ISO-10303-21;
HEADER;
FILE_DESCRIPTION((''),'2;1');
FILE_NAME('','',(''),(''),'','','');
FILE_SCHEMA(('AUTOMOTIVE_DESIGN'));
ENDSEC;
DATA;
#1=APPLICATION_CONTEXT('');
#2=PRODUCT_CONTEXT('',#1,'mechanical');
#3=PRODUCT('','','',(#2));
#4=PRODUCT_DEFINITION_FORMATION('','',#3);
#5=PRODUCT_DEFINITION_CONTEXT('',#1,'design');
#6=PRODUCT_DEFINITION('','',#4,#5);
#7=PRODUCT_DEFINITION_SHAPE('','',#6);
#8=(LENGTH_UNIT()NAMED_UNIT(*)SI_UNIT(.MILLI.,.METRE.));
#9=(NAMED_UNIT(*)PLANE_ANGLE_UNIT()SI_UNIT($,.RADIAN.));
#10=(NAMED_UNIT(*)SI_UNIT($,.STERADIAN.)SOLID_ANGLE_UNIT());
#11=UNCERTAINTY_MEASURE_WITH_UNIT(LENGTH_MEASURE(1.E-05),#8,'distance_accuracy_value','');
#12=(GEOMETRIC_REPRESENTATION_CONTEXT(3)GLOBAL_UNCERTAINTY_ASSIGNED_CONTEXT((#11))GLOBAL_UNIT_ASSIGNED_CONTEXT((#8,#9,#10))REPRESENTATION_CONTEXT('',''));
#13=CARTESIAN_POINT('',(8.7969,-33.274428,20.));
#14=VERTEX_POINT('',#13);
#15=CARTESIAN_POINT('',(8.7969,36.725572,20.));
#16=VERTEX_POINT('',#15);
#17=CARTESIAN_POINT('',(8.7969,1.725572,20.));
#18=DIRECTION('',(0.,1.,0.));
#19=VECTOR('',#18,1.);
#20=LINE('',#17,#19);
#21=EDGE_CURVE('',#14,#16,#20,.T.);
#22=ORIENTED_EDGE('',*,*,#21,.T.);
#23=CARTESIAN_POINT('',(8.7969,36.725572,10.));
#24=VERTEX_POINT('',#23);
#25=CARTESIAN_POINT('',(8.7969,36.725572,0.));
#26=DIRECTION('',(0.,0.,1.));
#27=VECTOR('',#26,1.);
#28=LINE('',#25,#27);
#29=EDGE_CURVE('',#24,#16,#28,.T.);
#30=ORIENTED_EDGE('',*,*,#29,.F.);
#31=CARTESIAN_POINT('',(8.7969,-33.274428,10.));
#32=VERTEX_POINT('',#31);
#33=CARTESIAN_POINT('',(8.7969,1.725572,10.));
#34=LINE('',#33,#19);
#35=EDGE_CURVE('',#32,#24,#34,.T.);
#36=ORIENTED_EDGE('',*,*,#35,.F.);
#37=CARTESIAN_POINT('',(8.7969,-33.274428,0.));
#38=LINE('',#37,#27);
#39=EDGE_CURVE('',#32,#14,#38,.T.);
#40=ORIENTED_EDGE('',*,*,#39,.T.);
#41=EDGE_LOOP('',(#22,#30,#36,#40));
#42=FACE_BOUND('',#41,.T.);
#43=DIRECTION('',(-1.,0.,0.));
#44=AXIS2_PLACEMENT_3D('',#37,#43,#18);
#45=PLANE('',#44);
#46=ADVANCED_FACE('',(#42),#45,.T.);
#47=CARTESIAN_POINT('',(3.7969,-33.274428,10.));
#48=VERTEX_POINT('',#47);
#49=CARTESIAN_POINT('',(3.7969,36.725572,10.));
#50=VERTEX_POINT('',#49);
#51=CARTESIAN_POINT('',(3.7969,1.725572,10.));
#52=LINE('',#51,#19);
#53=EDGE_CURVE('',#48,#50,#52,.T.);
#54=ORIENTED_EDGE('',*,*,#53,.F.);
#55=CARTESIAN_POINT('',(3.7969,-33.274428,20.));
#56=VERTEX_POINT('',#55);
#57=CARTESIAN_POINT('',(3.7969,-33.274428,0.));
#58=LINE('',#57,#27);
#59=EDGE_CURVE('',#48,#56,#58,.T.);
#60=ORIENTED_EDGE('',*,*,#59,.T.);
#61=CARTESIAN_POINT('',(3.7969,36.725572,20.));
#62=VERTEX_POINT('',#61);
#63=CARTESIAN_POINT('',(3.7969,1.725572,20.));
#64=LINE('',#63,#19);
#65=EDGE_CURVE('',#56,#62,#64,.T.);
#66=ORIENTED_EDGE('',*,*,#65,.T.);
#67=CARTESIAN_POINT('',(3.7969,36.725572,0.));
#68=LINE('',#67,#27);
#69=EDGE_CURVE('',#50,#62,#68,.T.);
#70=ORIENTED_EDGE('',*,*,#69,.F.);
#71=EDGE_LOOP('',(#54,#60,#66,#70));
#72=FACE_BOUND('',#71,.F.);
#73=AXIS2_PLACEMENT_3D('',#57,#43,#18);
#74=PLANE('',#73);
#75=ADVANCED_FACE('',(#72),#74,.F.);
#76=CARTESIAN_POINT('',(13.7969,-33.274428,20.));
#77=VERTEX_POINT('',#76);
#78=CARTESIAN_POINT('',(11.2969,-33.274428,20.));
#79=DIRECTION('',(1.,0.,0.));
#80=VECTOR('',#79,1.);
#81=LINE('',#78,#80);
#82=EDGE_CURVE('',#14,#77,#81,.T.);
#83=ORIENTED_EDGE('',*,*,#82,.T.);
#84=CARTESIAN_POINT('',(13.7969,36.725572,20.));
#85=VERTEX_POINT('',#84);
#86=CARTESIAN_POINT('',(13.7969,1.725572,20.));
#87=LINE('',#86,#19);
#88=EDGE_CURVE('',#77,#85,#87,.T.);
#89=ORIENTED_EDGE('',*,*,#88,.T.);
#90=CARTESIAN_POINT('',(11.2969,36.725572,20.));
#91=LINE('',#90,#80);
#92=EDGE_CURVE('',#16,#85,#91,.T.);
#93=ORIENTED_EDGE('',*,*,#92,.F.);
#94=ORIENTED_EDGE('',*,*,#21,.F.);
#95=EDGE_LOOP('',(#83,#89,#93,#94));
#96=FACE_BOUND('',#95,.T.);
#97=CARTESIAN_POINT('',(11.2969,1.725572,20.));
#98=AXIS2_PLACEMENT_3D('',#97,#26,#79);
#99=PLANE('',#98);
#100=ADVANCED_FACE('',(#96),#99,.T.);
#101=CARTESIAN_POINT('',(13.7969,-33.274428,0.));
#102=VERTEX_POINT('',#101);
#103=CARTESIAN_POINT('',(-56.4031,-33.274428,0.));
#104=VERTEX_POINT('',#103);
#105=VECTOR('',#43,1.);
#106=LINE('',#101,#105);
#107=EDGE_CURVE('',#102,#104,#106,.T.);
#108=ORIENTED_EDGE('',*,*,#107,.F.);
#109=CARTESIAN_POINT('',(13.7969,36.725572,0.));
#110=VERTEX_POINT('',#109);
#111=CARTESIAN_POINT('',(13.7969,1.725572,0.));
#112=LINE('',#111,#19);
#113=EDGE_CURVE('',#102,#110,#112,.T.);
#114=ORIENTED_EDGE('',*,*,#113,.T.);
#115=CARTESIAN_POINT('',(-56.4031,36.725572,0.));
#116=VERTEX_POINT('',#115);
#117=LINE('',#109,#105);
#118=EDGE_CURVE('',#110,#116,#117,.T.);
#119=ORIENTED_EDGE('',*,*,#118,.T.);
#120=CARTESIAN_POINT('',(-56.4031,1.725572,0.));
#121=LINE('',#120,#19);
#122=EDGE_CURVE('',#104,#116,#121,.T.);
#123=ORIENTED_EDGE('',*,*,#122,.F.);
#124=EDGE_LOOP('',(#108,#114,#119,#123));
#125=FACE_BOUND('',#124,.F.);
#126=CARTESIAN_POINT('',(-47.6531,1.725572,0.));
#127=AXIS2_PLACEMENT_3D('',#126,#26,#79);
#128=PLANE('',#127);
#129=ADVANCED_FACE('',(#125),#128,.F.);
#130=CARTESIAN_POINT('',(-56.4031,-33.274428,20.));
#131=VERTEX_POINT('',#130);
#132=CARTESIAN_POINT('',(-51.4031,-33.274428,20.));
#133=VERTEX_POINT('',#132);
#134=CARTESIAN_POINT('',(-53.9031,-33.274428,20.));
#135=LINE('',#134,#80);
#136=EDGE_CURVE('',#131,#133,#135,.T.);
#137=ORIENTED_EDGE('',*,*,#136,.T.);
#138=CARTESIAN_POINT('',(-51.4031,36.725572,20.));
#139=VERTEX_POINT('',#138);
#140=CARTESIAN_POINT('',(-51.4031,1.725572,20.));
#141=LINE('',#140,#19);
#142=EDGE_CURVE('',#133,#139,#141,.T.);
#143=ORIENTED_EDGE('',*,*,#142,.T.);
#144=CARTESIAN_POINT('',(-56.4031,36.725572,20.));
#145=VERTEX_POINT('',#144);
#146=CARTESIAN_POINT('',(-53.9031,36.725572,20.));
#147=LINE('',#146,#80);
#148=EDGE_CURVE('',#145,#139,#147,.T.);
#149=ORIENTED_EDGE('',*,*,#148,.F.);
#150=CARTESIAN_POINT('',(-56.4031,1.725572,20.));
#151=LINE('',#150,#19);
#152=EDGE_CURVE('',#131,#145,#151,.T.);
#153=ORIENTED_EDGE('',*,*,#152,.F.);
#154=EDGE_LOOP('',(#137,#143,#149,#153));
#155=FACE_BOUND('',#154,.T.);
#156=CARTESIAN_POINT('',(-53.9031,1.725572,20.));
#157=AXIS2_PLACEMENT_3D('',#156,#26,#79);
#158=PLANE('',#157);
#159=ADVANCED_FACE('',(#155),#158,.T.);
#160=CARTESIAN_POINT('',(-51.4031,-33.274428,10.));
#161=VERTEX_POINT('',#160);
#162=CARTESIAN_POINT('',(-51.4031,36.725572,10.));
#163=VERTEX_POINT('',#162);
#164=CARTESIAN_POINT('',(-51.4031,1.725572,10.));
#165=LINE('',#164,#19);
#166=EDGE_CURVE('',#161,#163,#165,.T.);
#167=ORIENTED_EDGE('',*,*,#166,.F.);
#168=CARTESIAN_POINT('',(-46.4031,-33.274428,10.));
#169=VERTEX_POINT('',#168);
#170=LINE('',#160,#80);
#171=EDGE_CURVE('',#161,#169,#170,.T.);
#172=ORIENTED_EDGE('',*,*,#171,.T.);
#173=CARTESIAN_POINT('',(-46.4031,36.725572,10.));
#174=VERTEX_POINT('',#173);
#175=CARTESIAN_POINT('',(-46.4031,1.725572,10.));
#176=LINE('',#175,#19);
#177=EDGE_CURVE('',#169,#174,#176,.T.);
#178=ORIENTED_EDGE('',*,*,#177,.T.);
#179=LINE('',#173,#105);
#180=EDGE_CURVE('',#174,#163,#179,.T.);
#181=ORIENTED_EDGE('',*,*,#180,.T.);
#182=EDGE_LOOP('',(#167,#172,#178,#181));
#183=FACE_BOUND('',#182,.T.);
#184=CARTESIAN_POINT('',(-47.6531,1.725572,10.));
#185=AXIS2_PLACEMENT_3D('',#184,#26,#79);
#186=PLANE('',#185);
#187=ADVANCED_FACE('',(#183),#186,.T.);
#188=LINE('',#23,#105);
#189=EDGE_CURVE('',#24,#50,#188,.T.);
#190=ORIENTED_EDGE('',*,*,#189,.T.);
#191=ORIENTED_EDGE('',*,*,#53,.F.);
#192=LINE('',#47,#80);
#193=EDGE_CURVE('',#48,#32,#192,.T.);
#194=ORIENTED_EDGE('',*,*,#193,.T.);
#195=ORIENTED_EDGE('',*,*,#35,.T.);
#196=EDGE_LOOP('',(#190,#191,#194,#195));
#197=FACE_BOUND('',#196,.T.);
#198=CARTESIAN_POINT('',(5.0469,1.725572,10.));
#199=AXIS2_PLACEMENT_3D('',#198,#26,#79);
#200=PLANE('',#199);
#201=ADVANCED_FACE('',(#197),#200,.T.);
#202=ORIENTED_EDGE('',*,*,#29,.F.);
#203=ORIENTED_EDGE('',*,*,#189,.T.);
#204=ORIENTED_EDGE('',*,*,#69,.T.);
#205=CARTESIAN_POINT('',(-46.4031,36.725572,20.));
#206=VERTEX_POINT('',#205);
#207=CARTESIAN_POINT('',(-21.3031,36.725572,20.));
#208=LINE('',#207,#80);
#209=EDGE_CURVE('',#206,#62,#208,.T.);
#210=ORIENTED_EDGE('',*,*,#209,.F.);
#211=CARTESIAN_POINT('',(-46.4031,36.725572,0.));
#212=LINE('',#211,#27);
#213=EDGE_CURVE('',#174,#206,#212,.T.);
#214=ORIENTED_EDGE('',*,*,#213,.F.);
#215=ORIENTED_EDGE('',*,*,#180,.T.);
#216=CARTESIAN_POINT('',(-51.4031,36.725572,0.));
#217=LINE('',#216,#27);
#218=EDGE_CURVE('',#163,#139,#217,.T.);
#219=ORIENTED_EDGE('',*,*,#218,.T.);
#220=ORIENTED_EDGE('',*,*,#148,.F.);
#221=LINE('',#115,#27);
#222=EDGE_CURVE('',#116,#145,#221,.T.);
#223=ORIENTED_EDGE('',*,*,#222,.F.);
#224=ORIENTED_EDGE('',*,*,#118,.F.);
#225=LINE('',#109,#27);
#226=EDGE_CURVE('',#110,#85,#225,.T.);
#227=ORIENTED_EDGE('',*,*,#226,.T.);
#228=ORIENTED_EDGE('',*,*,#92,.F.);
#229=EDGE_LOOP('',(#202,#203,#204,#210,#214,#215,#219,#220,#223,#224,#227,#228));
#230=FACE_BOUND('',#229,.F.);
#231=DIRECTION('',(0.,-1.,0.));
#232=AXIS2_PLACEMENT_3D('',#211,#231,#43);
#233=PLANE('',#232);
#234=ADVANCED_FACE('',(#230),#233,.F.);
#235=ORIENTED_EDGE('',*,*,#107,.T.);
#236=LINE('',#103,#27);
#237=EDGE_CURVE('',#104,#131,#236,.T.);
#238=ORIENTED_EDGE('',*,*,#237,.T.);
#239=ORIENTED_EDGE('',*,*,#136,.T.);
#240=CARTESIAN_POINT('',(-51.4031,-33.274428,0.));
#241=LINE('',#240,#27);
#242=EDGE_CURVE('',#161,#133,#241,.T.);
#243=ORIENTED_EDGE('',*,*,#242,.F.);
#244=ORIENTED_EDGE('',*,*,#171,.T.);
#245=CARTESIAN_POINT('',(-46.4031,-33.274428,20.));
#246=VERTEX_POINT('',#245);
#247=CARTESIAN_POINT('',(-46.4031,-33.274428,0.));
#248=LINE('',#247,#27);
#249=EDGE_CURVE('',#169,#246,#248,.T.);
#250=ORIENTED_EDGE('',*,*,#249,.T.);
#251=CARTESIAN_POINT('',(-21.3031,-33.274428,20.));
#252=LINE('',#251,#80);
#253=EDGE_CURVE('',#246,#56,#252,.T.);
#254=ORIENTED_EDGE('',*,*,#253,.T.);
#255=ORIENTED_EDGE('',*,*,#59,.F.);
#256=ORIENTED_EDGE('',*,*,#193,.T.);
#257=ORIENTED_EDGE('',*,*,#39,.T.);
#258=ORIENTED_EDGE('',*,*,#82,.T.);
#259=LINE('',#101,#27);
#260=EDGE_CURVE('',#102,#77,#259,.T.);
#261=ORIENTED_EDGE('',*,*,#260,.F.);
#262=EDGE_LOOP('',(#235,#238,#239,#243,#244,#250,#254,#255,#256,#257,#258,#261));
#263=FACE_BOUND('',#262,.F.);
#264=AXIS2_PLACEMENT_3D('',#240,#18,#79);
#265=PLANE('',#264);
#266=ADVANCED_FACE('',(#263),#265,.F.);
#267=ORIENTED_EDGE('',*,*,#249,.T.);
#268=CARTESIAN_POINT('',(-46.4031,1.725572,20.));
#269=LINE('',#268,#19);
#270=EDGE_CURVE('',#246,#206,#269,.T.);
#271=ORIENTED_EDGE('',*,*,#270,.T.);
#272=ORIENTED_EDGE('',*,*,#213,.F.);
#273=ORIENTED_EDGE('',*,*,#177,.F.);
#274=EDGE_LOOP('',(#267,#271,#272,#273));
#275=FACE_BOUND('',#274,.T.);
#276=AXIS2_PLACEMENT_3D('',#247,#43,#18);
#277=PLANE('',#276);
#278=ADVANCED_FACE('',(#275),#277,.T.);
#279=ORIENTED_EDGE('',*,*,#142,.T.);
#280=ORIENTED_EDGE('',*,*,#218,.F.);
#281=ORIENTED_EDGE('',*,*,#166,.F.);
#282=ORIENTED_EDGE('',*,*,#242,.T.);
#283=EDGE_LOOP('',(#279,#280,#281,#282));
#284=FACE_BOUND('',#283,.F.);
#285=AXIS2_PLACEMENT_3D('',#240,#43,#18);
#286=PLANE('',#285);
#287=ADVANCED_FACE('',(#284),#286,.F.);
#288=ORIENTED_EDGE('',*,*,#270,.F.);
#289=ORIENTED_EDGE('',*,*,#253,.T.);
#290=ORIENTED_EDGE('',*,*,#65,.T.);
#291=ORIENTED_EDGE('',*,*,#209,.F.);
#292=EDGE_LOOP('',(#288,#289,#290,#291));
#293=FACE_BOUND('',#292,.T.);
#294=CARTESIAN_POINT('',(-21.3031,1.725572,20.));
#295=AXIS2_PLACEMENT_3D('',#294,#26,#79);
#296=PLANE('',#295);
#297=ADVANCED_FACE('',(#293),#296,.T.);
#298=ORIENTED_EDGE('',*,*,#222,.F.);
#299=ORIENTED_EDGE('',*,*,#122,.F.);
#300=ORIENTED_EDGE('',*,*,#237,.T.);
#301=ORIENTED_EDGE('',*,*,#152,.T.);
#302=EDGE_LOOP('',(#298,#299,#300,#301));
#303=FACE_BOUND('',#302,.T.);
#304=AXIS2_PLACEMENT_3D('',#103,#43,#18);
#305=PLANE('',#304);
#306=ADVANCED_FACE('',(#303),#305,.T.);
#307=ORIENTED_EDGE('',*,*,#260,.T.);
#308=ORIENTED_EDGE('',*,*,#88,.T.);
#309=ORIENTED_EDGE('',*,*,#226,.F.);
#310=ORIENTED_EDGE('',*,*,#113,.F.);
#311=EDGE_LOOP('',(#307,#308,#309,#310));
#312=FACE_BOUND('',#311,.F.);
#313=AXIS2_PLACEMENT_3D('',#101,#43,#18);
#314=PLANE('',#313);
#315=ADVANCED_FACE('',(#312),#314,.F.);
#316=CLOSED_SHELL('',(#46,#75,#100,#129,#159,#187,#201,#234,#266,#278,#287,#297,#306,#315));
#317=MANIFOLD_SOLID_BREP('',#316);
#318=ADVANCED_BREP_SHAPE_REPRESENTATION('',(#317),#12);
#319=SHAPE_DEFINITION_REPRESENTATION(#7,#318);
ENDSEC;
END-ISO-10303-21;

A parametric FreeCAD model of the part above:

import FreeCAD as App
import Part
import Sketcher
Q = App.Units.Quantity

doc = App.newDocument("Part")
body = doc.addObject("PartDesign::Body", "Body")

# Sketch on XY plane
sketch1 = body.newObject("Sketcher::SketchObject", "Sketch")
sketch1.AttachmentSupport = (doc.getObject("XY_Plane"), [""])
sketch1.MapMode = "FlatFace"
sketch1.addGeometry([
    Part.LineSegment(App.Vector(-56, 37, 0), App.Vector(-56, -33, 0)),
    Part.LineSegment(App.Vector(-56, -33, 0), App.Vector(-51, -33, 0)),
    Part.LineSegment(App.Vector(-51, -33, 0), App.Vector(-51, 37, 0)),
    Part.LineSegment(App.Vector(-51, 37, 0), App.Vector(-56, 37, 0)),
], False)
sketch1.addConstraint([
    Sketcher.Constraint("Coincident", 0, 2, 1, 1),
    Sketcher.Constraint("Coincident", 1, 2, 2, 1),
    Sketcher.Constraint("Coincident", 2, 2, 3, 1),
    Sketcher.Constraint("Coincident", 3, 2, 0, 1),
    Sketcher.Constraint("Vertical", 0),
    Sketcher.Constraint("Horizontal", 1),
    Sketcher.Constraint("Vertical", 2),
    Sketcher.Constraint("Horizontal", 3),
    Sketcher.Constraint("DistanceX", 1, 1, 1, 2, Q("5 mm")),
    Sketcher.Constraint("DistanceY", 0, 2, 0, 1, Q("70 mm")),
    Sketcher.Constraint("DistanceX", 0, 2, -1, 1, Q("56.4031 mm")),
    Sketcher.Constraint("DistanceY", 0, 2, -1, 1, Q("33.274428 mm")),
])
pad1 = body.newObject("PartDesign::Pad", "Pad")
pad1.Profile = sketch1
pad1.Length = 20
body2 = doc.addObject("PartDesign::Body", "Body001")

# Sketch on XY plane
sketch2 = body2.newObject("Sketcher::SketchObject", "Sketch001")
sketch2.AttachmentSupport = (doc.getObject("XY_Plane001"), [""])
sketch2.MapMode = "FlatFace"
sketch2.addGeometry([
    Part.LineSegment(App.Vector(-46, 37, 0), App.Vector(-46, -33, 0)),
    Part.LineSegment(App.Vector(-46, -33, 0), App.Vector(4, -33, 0)),
    Part.LineSegment(App.Vector(4, -33, 0), App.Vector(4, 37, 0)),
    Part.LineSegment(App.Vector(4, 37, 0), App.Vector(-46, 37, 0)),
], False)
sketch2.addConstraint([
    Sketcher.Constraint("Coincident", 0, 2, 1, 1),
    Sketcher.Constraint("Coincident", 1, 2, 2, 1),
    Sketcher.Constraint("Coincident", 2, 2, 3, 1),
    Sketcher.Constraint("Coincident", 3, 2, 0, 1),
    Sketcher.Constraint("Vertical", 0),
    Sketcher.Constraint("Horizontal", 1),
    Sketcher.Constraint("Vertical", 2),
    Sketcher.Constraint("Horizontal", 3),
    Sketcher.Constraint("DistanceY", 0, 2, 0, 1, Q("70 mm")),
    Sketcher.Constraint("DistanceX", 1, 1, 1, 2, Q("50.2 mm")),
    Sketcher.Constraint("DistanceX", 0, 2, -1, 1, Q("46.4031 mm")),
    Sketcher.Constraint("DistanceY", 0, 2, -1, 1, Q("33.274428 mm")),
])
pad2 = body2.newObject("PartDesign::Pad", "Pad001")
pad2.Profile = sketch2
pad2.Length = 20
body3 = doc.addObject("PartDesign::Body", "Body002")

# Sketch on XY plane
sketch3 = body3.newObject("Sketcher::SketchObject", "Sketch002")
sketch3.AttachmentSupport = (doc.getObject("XY_Plane002"), [""])
sketch3.MapMode = "FlatFace"
sketch3.addGeometry([
    Part.LineSegment(App.Vector(9, 37, 0), App.Vector(9, -33, 0)),
    Part.LineSegment(App.Vector(9, -33, 0), App.Vector(14, -33, 0)),
    Part.LineSegment(App.Vector(14, -33, 0), App.Vector(14, 37, 0)),
    Part.LineSegment(App.Vector(14, 37, 0), App.Vector(9, 37, 0)),
], False)
sketch3.addConstraint([
    Sketcher.Constraint("Coincident", 0, 2, 1, 1),
    Sketcher.Constraint("Coincident", 1, 2, 2, 1),
    Sketcher.Constraint("Coincident", 2, 2, 3, 1),
    Sketcher.Constraint("Coincident", 3, 2, 0, 1),
    Sketcher.Constraint("Vertical", 0),
    Sketcher.Constraint("Horizontal", 1),
    Sketcher.Constraint("Vertical", 2),
    Sketcher.Constraint("Horizontal", 3),
    Sketcher.Constraint("DistanceX", 1, 1, 1, 2, Q("5 mm")),
    Sketcher.Constraint("DistanceY", 0, 2, 0, 1, Q("70 mm")),
    Sketcher.Constraint("DistanceX", -1, 1, 0, 2, Q("8.7969 mm")),
    Sketcher.Constraint("DistanceY", 0, 2, -1, 1, Q("33.274428 mm")),
])
pad3 = body3.newObject("PartDesign::Pad", "Pad002")
pad3.Profile = sketch3
pad3.Length = 20
body.AllowCompound = True
doc.recompute()

boolean = body.newObject("PartDesign::Boolean", "Boolean")
boolean.Type = "Fuse"
boolean.addObjects([body2])
doc.recompute()

boolean2 = body.newObject("PartDesign::Boolean", "Boolean001")
boolean2.Type = "Fuse"
boolean2.addObjects([body3])

# Sketch on XY plane
sketch4 = body.newObject("Sketcher::SketchObject", "Sketch003")
sketch4.AttachmentSupport = (doc.getObject("XY_Plane"), [""])
sketch4.MapMode = "FlatFace"
sketch4.addGeometry([
    Part.LineSegment(App.Vector(-46.4, -33.3, 0), App.Vector(-46.4, 36.7, 0)),  # 0
    Part.LineSegment(App.Vector(-46.4, 36.7, 0), App.Vector(-51.4, 36.7, 0)),  # 1
    Part.LineSegment(App.Vector(-51.4, 36.7, 0), App.Vector(-51.4, -33.3, 0)),  # 2
    Part.LineSegment(App.Vector(-51.4, -33.3, 0), App.Vector(-46.4, -33.3, 0)),  # 3
    Part.LineSegment(App.Vector(3.8, 36.7, 0), App.Vector(3.8, -33.3, 0)),  # 4
    Part.LineSegment(App.Vector(3.8, -33.3, 0), App.Vector(8.8, -33.3, 0)),  # 5
    Part.LineSegment(App.Vector(8.8, -33.3, 0), App.Vector(8.8, 36.7, 0)),  # 6
    Part.LineSegment(App.Vector(8.8, 36.7, 0), App.Vector(3.8, 36.7, 0)),  # 7
], False)
sketch4.addConstraint([
    Sketcher.Constraint("Coincident", 0, 2, 1, 1),
    Sketcher.Constraint("Coincident", 1, 2, 2, 1),
    Sketcher.Constraint("Coincident", 2, 2, 3, 1),
    Sketcher.Constraint("Coincident", 3, 2, 0, 1),
    Sketcher.Constraint("Coincident", 4, 2, 5, 1),
    Sketcher.Constraint("Coincident", 5, 2, 6, 1),
    Sketcher.Constraint("Coincident", 6, 2, 7, 1),
    Sketcher.Constraint("Coincident", 7, 2, 4, 1),
    Sketcher.Constraint("Vertical", 0),
    Sketcher.Constraint("Horizontal", 1),
    Sketcher.Constraint("Vertical", 2),
    Sketcher.Constraint("Horizontal", 3),
    Sketcher.Constraint("Vertical", 4),
    Sketcher.Constraint("Horizontal", 5),
    Sketcher.Constraint("Vertical", 6),
    Sketcher.Constraint("Horizontal", 7),
    Sketcher.Constraint("Horizontal", 3, 2, 4, 2),
    Sketcher.Constraint("Horizontal", 1, 2, 6, 2),
    Sketcher.Constraint("Equal", 3, 5),
    Sketcher.Constraint("DistanceX", 1, 2, 1, 1, Q("5 mm")),
    Sketcher.Constraint("DistanceY", 0, 1, 0, 2, Q("70 mm")),
    Sketcher.Constraint("DistanceX", 3, 2, 4, 2, Q("50.2 mm")),
    Sketcher.Constraint("DistanceX", 0, 2, -1, 1, Q("46.4031 mm")),
    Sketcher.Constraint("DistanceY", -1, 1, 0, 2, Q("36.725572 mm")),
])
pad4 = body.newObject("PartDesign::Pad", "Pad003")
pad4.Profile = sketch4
pad4.Length = 10

doc.recompute()
